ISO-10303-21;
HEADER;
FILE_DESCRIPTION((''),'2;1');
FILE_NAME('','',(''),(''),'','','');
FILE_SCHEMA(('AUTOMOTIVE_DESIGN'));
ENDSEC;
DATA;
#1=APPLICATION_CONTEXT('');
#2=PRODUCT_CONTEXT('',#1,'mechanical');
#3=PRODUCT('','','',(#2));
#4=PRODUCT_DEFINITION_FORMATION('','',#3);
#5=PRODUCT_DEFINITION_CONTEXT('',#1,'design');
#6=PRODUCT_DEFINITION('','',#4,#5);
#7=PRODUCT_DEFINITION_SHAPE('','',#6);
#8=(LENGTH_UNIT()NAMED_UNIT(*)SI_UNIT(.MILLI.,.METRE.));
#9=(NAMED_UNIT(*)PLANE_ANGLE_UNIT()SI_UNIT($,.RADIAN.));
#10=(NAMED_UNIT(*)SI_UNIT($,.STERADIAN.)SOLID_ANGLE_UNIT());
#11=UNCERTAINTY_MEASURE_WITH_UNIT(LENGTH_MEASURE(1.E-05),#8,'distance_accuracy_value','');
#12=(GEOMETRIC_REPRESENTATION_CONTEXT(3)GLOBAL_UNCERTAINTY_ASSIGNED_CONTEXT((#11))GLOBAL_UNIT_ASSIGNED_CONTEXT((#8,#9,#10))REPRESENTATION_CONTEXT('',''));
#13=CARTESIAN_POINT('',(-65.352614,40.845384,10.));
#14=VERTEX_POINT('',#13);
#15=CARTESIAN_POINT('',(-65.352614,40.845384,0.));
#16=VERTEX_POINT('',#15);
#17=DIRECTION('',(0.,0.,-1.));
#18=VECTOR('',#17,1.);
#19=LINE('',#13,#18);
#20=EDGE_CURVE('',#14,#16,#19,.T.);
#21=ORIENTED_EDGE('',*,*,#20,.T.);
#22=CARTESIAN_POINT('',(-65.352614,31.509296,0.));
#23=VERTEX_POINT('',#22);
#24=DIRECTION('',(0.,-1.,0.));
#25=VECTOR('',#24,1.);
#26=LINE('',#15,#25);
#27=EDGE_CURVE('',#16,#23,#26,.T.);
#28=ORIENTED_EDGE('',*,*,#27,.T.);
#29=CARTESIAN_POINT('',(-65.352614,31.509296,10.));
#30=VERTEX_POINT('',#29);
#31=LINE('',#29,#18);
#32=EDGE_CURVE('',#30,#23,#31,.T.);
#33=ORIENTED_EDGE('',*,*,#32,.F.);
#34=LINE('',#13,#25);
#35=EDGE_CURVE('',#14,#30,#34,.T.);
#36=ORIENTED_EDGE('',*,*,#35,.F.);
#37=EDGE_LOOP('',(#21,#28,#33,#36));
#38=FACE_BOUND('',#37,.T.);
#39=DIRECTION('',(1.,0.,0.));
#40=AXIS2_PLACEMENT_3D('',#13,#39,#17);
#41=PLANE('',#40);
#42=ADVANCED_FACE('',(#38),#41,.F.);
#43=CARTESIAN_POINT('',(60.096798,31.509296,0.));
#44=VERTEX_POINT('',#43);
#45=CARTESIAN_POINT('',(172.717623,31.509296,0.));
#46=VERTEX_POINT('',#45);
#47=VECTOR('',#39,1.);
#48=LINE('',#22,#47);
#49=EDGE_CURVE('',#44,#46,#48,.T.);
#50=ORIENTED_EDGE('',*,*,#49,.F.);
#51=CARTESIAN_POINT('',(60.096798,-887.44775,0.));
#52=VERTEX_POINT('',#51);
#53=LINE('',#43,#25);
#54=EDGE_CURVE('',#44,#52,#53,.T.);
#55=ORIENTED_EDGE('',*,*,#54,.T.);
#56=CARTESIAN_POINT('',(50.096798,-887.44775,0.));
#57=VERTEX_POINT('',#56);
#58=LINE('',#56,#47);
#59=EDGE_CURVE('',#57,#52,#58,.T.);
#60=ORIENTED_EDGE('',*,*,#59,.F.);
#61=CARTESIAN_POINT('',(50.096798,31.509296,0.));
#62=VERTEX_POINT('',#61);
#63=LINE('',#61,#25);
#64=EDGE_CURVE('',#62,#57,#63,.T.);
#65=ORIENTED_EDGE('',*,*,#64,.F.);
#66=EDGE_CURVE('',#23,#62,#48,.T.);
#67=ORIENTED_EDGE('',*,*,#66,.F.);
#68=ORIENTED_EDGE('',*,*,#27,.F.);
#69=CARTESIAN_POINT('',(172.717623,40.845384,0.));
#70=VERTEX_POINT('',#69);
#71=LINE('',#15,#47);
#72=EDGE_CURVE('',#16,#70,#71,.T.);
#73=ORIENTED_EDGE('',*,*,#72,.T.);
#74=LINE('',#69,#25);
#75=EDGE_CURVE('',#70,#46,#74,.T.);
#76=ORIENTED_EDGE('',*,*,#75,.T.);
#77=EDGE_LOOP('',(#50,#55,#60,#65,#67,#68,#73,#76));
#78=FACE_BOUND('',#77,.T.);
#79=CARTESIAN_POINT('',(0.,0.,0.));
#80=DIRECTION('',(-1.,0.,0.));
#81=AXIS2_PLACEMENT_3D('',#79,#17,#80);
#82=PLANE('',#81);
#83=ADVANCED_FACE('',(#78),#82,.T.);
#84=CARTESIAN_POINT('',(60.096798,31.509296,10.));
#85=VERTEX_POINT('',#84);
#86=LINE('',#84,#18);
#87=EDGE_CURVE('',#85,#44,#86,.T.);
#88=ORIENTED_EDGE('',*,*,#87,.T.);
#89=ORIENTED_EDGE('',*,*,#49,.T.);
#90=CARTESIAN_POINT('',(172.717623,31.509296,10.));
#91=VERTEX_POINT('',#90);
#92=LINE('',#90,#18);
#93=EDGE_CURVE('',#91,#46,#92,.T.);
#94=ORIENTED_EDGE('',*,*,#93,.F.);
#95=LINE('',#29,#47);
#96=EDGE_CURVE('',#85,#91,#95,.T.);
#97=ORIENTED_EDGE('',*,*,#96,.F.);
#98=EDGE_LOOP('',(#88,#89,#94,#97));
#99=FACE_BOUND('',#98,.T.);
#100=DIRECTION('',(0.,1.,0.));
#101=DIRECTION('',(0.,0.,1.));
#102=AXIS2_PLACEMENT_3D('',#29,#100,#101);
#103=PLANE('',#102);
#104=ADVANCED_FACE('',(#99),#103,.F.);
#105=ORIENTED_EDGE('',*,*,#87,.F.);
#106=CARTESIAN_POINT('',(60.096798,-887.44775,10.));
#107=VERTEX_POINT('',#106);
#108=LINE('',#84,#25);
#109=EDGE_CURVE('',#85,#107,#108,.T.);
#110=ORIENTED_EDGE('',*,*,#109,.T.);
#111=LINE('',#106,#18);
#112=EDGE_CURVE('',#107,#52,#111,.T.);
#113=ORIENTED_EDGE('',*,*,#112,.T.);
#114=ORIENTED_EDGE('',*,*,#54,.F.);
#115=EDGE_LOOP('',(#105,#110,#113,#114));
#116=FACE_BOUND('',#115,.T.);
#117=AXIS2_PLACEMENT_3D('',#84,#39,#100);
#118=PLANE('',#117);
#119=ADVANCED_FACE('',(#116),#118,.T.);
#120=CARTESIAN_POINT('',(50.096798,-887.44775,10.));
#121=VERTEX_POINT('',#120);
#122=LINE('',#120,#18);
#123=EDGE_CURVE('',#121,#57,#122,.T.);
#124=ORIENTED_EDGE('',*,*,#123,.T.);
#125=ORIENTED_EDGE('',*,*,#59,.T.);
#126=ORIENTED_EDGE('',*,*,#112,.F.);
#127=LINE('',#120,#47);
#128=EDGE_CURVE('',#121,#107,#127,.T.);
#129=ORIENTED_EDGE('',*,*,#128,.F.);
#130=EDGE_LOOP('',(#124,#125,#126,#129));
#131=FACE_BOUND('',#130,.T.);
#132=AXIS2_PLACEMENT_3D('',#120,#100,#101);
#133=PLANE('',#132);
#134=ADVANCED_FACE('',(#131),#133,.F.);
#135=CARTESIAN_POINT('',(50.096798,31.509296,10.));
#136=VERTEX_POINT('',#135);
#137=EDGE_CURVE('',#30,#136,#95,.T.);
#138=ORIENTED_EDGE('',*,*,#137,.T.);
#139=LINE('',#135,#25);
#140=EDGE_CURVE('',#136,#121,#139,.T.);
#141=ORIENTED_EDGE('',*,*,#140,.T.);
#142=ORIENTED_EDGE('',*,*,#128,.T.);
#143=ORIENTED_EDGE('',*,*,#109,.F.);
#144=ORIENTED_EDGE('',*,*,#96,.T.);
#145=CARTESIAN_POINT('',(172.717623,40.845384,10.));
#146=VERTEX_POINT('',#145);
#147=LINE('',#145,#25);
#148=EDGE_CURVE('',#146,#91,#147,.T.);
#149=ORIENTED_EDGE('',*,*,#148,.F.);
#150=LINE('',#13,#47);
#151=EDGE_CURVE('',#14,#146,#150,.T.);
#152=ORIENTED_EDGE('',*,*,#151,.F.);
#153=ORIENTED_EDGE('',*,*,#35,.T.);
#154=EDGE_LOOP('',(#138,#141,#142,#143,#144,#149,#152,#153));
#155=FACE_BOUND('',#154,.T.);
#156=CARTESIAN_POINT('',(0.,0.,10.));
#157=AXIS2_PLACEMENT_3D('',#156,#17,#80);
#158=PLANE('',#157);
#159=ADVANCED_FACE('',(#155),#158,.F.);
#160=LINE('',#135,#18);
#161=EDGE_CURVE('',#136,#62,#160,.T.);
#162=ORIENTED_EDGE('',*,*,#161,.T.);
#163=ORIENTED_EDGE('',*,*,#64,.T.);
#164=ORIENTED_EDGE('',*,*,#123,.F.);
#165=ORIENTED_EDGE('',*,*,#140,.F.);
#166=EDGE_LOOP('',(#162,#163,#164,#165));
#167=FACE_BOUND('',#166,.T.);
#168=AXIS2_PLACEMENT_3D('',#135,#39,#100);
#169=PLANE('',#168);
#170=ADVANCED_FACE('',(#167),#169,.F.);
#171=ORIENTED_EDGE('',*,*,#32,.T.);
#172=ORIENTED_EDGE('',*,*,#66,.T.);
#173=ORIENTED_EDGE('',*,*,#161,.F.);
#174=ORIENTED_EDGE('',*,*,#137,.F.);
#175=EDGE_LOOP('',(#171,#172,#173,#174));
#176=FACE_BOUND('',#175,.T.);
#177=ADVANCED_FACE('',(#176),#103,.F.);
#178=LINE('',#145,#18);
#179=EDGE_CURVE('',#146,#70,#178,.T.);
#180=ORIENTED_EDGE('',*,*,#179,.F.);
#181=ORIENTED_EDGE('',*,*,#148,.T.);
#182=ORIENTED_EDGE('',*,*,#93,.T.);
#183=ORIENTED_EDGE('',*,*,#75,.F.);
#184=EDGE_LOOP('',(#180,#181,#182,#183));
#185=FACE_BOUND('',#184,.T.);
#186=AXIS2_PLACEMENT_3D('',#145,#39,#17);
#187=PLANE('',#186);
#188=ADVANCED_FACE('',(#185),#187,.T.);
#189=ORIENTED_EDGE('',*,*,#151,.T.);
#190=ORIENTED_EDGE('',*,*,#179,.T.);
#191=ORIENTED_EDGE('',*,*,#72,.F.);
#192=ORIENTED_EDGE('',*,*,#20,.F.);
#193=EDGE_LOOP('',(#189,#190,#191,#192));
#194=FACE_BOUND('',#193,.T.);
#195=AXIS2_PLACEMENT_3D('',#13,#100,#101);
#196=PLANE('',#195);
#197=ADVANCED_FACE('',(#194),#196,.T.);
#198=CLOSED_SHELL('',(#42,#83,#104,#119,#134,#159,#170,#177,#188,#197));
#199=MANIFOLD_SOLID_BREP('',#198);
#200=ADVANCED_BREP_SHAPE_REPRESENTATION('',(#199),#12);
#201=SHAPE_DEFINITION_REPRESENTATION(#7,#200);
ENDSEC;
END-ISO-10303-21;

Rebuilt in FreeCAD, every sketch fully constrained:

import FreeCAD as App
import Part
import Sketcher
from FreeCAD import Vector
Q = App.Units.Quantity

doc = App.newDocument("Part")
body = doc.addObject("PartDesign::Body", "Body")

# Sketch on XY plane
sketch1 = body.newObject("Sketcher::SketchObject", "Sketch")
sketch1.AttachmentSupport = (doc.getObject("XY_Plane"), [""])
sketch1.MapMode = "FlatFace"
sketch1.addGeometry([
    Part.LineSegment(Vector(-65, 41, 0), Vector(-65, 32, 0)),  # 0
    Part.LineSegment(Vector(-65, 32, 0), Vector(50, 32, 0)),  # 1
    Part.LineSegment(Vector(50, 32, 0), Vector(50, -887, 0)),  # 2
    Part.LineSegment(Vector(50, -887, 0), Vector(60, -887, 0)),  # 3
    Part.LineSegment(Vector(60, -887, 0), Vector(60, 32, 0)),  # 4
    Part.LineSegment(Vector(60, 32, 0), Vector(173, 32, 0)),  # 5
    Part.LineSegment(Vector(173, 32, 0), Vector(173, 41, 0)),  # 6
    Part.LineSegment(Vector(173, 41, 0), Vector(-65, 41, 0)),  # 7
], False)
sketch1.addConstraint([
    Sketcher.Constraint("Coincident", 0, 2, 1, 1),
    Sketcher.Constraint("Coincident", 1, 2, 2, 1),
    Sketcher.Constraint("Coincident", 2, 2, 3, 1),
    Sketcher.Constraint("Coincident", 3, 2, 4, 1),
    Sketcher.Constraint("Coincident", 4, 2, 5, 1),
    Sketcher.Constraint("Coincident", 5, 2, 6, 1),
    Sketcher.Constraint("Coincident", 6, 2, 7, 1),
    Sketcher.Constraint("Coincident", 7, 2, 0, 1),
    Sketcher.Constraint("Vertical", 0),
    Sketcher.Constraint("Horizontal", 1),
    Sketcher.Constraint("Vertical", 2),
    Sketcher.Constraint("Horizontal", 3),
    Sketcher.Constraint("Vertical", 4),
    Sketcher.Constraint("Horizontal", 5),
    Sketcher.Constraint("Vertical", 6),
    Sketcher.Constraint("Horizontal", 7),
    Sketcher.Constraint("Horizontal", 1, 2, 4, 2),
    Sketcher.Constraint("DistanceX", 3, 1, 3, 2, Q("10 mm")),
    Sketcher.Constraint("DistanceX", 1, 1, 1, 2, Q("115.449412 mm")),
    Sketcher.Constraint("DistanceX", 5, 1, 5, 2, Q("112.620825 mm")),
    Sketcher.Constraint("DistanceY", 0, 2, 0, 1, Q("9.336088 mm")),
    Sketcher.Constraint("DistanceY", 2, 2, 2, 1, Q("918.957046 mm")),
    Sketcher.Constraint("DistanceY", 2, 2, -1, 1, Q("887.44775 mm")),
    Sketcher.Constraint("DistanceX", 0, 2, -1, 1, Q("65.352614 mm")),
])
pad1 = body.newObject("PartDesign::Pad", "Pad")
pad1.Profile = sketch1
pad1.Length = 10

doc.recompute()
